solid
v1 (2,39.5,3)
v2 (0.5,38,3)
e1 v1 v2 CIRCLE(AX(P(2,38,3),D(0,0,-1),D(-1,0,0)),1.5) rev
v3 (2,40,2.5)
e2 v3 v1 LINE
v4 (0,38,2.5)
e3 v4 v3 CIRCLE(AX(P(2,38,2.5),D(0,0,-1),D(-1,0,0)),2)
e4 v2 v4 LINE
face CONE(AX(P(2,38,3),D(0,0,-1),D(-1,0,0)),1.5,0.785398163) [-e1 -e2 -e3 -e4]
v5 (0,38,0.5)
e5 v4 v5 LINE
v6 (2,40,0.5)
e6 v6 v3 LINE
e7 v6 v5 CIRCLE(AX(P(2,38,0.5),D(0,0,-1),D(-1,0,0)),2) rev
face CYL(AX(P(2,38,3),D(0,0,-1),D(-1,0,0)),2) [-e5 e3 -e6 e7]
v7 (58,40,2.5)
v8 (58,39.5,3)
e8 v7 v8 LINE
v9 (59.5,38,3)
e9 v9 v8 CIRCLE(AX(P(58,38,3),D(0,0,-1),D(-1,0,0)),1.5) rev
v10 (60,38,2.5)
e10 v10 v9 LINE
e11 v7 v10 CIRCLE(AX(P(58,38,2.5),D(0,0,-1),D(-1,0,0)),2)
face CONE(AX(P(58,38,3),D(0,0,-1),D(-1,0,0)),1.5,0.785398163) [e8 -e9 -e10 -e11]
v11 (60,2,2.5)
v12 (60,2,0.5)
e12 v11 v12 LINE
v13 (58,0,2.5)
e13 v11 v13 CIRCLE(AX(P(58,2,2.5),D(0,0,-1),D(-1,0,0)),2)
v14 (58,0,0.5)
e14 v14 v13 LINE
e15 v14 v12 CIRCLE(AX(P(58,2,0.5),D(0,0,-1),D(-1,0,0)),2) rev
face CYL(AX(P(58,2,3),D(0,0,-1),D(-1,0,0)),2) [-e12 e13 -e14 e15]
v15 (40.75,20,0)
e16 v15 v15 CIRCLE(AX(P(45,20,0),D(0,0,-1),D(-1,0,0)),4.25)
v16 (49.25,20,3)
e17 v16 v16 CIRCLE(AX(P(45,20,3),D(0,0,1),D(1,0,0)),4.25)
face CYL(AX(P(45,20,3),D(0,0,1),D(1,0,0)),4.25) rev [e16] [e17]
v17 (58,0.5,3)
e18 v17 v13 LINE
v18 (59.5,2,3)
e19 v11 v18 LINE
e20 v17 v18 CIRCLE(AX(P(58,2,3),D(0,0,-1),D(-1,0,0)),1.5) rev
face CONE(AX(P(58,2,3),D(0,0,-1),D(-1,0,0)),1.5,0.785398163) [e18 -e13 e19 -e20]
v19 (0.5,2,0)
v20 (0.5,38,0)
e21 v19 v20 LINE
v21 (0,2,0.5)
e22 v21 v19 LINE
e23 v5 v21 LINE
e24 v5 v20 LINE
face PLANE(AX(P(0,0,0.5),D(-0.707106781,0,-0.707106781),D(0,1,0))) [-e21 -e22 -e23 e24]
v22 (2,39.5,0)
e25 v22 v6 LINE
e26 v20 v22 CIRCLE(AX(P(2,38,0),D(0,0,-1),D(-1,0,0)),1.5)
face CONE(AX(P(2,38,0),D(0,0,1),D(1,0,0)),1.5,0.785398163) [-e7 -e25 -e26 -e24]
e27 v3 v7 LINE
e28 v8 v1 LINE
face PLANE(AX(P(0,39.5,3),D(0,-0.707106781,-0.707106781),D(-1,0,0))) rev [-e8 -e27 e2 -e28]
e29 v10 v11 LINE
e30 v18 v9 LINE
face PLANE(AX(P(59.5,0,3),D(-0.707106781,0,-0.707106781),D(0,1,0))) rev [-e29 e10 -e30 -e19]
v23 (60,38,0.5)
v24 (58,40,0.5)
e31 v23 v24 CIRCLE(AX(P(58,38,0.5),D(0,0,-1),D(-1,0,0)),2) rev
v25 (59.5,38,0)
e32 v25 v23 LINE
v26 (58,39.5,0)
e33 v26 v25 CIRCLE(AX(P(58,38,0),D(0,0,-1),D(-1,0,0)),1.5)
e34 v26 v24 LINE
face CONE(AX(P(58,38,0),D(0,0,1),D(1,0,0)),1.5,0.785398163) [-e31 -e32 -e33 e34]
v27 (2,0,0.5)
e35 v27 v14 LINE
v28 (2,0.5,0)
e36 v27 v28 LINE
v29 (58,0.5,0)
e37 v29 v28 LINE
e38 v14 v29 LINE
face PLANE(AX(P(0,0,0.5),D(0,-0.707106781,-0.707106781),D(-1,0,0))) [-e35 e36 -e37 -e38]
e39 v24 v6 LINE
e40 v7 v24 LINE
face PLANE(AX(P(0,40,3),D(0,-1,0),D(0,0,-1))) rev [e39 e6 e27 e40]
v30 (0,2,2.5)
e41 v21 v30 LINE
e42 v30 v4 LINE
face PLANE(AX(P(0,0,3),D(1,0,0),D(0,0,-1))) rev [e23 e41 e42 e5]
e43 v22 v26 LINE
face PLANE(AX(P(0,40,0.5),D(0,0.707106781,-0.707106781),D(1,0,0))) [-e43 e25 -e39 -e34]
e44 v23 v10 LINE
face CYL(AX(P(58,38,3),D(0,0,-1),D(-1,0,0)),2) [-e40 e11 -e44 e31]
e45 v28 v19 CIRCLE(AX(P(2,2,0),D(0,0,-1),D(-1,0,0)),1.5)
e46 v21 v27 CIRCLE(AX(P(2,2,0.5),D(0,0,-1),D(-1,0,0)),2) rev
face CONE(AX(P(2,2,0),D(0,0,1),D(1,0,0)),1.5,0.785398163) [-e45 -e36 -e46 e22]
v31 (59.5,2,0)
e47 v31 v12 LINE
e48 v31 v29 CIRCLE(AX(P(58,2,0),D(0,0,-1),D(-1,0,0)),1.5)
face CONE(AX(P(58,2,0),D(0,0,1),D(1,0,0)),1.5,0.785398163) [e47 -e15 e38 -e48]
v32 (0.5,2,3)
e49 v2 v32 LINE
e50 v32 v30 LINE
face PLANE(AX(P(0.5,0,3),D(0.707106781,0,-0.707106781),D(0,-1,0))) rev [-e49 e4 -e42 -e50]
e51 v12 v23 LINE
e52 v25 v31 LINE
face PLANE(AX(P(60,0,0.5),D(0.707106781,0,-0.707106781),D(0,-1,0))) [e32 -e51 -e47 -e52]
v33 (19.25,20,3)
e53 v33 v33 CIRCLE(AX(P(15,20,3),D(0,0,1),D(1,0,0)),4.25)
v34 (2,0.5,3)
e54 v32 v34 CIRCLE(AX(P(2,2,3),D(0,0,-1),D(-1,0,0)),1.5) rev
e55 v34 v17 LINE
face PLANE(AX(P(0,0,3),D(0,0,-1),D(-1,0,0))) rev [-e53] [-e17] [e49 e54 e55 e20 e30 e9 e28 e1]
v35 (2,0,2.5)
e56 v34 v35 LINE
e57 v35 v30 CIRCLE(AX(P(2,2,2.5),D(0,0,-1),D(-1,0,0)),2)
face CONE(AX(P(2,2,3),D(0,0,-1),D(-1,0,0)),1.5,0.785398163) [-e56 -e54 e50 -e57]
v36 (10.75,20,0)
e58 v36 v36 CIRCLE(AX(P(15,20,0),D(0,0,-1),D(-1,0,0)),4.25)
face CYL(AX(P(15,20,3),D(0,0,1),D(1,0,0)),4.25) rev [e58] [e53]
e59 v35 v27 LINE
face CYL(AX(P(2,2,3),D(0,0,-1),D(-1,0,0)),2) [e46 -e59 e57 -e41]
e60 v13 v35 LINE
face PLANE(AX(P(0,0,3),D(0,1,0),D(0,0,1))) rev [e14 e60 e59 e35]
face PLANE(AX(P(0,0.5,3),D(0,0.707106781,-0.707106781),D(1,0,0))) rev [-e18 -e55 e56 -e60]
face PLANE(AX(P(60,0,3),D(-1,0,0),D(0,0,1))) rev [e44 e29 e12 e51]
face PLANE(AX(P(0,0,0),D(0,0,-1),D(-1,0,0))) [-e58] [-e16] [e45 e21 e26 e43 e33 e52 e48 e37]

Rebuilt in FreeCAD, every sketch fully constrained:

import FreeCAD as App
import Part
import Sketcher
Q = App.Units.Quantity


def edges_at(feature, points):
    """Names of the edges that pass closest to the given points."""
    edges = feature.Shape.Edges
    near = lambda p: min(range(len(edges)), key=lambda i: edges[i].distToShape(Part.Vertex(*p))[0])
    return sorted({f"Edge{near(p) + 1}" for p in points})

doc = App.newDocument("Part")
body = doc.addObject("PartDesign::Body", "Body")

# Sketch on XY plane
sketch1 = doc.addObject("Sketcher::SketchObject", "Sketch")
body.addObject(sketch1)
sketch1.AttachmentSupport = (doc.XY_Plane, [""])
sketch1.MapMode = "FlatFace"
sketch1.addGeometry([
    Part.LineSegment(App.Vector(0, 40, 0), App.Vector(0, 0, 0)),
    Part.LineSegment(App.Vector(0, 0, 0), App.Vector(60, 0, 0)),
    Part.LineSegment(App.Vector(60, 0, 0), App.Vector(60, 40, 0)),
    Part.LineSegment(App.Vector(60, 40, 0), App.Vector(0, 40, 0)),
], False)
sketch1.addConstraint([
    Sketcher.Constraint("Coincident", 0, 2, 1, 1),
    Sketcher.Constraint("Coincident", 1, 2, 2, 1),
    Sketcher.Constraint("Coincident", 2, 2, 3, 1),
    Sketcher.Constraint("Coincident", 3, 2, 0, 1),
    Sketcher.Constraint("Vertical", 0),
    Sketcher.Constraint("Horizontal", 1),
    Sketcher.Constraint("Vertical", 2),
    Sketcher.Constraint("Horizontal", 3),
    Sketcher.Constraint("Coincident", 0, 2, -1, 1),
    Sketcher.Constraint("DistanceX", 1, 1, 1, 2, Q("60 mm")),
    Sketcher.Constraint("DistanceY", 0, 2, 0, 1, Q("40 mm")),
])
pad1 = doc.addObject("PartDesign::Pad", "Pad")
body.addObject(pad1)
pad1.Profile = sketch1
pad1.Length = 3

# Sketch on XY plane
sketch2 = doc.addObject("Sketcher::SketchObject", "Sketch001")
body.addObject(sketch2)
sketch2.AttachmentSupport = (doc.XY_Plane, [""])
sketch2.MapMode = "FlatFace"
sketch2.AttachmentOffset = App.Placement(App.Vector(0, 0, 3), App.Rotation())
sketch2.addGeometry([
    Part.Circle(App.Vector(15, 20, 0), App.Vector(0, 0, 1), 4.25),
    Part.Circle(App.Vector(45, 20, 0), App.Vector(0, 0, 1), 4.25),
], False)
sketch2.addConstraint([
    Sketcher.Constraint("Equal", 0, 1),
    Sketcher.Constraint("Horizontal", 0, 3, 1, 3),
    Sketcher.Constraint("Diameter", 0, Q("8.5 mm")),
    Sketcher.Constraint("DistanceX", -1, 1, 0, 3, Q("15 mm")),
    Sketcher.Constraint("DistanceY", -1, 1, 0, 3, Q("20 mm")),
    Sketcher.Constraint("DistanceX", -1, 1, 1, 3, Q("45 mm")),
])
doc.recompute()
hole = doc.addObject("PartDesign::Hole", "Hole")
body.addObject(hole)
hole.Profile = sketch2
hole.ThreadType = "None"
hole.Diameter = 8.5
hole.DepthType = "Dimension"
hole.Depth = 27.5
hole.DrillPoint = "Angled"
hole.DrillPointAngle = 118
doc.recompute()

fillet = doc.addObject("PartDesign::Fillet", "Fillet")
body.addObject(fillet)
fillet.Base = (hole, edges_at(hole, [
    (0, 40, 1.5),
    (60, 40, 1.5),
    (60, 0, 1.5),
    (0, 0, 1.5),
]))
fillet.Radius = 2
doc.recompute()

chamfer = doc.addObject("PartDesign::Chamfer", "Chamfer")
body.addObject(chamfer)
chamfer.Base = (fillet, edges_at(fillet, [
    (60, 20, 0),
    (60, 20, 3),
    (0, 20, 0),
    (30, 40, 0),
    (30, 0, 0),
    (59.414, 39.414, 0),
    (0.586, 39.414, 0),
    (0.586, 0.586, 0),
    (59.414, 0.586, 0),
    (30, 0, 3),
    (0, 20, 3),
    (30, 40, 3),
    (59.414, 39.414, 3),
    (0.586, 39.414, 3),
    (0.586, 0.586, 3),
    (59.414, 0.586, 3),
]))
chamfer.Size = 0.5

doc.recompute()
